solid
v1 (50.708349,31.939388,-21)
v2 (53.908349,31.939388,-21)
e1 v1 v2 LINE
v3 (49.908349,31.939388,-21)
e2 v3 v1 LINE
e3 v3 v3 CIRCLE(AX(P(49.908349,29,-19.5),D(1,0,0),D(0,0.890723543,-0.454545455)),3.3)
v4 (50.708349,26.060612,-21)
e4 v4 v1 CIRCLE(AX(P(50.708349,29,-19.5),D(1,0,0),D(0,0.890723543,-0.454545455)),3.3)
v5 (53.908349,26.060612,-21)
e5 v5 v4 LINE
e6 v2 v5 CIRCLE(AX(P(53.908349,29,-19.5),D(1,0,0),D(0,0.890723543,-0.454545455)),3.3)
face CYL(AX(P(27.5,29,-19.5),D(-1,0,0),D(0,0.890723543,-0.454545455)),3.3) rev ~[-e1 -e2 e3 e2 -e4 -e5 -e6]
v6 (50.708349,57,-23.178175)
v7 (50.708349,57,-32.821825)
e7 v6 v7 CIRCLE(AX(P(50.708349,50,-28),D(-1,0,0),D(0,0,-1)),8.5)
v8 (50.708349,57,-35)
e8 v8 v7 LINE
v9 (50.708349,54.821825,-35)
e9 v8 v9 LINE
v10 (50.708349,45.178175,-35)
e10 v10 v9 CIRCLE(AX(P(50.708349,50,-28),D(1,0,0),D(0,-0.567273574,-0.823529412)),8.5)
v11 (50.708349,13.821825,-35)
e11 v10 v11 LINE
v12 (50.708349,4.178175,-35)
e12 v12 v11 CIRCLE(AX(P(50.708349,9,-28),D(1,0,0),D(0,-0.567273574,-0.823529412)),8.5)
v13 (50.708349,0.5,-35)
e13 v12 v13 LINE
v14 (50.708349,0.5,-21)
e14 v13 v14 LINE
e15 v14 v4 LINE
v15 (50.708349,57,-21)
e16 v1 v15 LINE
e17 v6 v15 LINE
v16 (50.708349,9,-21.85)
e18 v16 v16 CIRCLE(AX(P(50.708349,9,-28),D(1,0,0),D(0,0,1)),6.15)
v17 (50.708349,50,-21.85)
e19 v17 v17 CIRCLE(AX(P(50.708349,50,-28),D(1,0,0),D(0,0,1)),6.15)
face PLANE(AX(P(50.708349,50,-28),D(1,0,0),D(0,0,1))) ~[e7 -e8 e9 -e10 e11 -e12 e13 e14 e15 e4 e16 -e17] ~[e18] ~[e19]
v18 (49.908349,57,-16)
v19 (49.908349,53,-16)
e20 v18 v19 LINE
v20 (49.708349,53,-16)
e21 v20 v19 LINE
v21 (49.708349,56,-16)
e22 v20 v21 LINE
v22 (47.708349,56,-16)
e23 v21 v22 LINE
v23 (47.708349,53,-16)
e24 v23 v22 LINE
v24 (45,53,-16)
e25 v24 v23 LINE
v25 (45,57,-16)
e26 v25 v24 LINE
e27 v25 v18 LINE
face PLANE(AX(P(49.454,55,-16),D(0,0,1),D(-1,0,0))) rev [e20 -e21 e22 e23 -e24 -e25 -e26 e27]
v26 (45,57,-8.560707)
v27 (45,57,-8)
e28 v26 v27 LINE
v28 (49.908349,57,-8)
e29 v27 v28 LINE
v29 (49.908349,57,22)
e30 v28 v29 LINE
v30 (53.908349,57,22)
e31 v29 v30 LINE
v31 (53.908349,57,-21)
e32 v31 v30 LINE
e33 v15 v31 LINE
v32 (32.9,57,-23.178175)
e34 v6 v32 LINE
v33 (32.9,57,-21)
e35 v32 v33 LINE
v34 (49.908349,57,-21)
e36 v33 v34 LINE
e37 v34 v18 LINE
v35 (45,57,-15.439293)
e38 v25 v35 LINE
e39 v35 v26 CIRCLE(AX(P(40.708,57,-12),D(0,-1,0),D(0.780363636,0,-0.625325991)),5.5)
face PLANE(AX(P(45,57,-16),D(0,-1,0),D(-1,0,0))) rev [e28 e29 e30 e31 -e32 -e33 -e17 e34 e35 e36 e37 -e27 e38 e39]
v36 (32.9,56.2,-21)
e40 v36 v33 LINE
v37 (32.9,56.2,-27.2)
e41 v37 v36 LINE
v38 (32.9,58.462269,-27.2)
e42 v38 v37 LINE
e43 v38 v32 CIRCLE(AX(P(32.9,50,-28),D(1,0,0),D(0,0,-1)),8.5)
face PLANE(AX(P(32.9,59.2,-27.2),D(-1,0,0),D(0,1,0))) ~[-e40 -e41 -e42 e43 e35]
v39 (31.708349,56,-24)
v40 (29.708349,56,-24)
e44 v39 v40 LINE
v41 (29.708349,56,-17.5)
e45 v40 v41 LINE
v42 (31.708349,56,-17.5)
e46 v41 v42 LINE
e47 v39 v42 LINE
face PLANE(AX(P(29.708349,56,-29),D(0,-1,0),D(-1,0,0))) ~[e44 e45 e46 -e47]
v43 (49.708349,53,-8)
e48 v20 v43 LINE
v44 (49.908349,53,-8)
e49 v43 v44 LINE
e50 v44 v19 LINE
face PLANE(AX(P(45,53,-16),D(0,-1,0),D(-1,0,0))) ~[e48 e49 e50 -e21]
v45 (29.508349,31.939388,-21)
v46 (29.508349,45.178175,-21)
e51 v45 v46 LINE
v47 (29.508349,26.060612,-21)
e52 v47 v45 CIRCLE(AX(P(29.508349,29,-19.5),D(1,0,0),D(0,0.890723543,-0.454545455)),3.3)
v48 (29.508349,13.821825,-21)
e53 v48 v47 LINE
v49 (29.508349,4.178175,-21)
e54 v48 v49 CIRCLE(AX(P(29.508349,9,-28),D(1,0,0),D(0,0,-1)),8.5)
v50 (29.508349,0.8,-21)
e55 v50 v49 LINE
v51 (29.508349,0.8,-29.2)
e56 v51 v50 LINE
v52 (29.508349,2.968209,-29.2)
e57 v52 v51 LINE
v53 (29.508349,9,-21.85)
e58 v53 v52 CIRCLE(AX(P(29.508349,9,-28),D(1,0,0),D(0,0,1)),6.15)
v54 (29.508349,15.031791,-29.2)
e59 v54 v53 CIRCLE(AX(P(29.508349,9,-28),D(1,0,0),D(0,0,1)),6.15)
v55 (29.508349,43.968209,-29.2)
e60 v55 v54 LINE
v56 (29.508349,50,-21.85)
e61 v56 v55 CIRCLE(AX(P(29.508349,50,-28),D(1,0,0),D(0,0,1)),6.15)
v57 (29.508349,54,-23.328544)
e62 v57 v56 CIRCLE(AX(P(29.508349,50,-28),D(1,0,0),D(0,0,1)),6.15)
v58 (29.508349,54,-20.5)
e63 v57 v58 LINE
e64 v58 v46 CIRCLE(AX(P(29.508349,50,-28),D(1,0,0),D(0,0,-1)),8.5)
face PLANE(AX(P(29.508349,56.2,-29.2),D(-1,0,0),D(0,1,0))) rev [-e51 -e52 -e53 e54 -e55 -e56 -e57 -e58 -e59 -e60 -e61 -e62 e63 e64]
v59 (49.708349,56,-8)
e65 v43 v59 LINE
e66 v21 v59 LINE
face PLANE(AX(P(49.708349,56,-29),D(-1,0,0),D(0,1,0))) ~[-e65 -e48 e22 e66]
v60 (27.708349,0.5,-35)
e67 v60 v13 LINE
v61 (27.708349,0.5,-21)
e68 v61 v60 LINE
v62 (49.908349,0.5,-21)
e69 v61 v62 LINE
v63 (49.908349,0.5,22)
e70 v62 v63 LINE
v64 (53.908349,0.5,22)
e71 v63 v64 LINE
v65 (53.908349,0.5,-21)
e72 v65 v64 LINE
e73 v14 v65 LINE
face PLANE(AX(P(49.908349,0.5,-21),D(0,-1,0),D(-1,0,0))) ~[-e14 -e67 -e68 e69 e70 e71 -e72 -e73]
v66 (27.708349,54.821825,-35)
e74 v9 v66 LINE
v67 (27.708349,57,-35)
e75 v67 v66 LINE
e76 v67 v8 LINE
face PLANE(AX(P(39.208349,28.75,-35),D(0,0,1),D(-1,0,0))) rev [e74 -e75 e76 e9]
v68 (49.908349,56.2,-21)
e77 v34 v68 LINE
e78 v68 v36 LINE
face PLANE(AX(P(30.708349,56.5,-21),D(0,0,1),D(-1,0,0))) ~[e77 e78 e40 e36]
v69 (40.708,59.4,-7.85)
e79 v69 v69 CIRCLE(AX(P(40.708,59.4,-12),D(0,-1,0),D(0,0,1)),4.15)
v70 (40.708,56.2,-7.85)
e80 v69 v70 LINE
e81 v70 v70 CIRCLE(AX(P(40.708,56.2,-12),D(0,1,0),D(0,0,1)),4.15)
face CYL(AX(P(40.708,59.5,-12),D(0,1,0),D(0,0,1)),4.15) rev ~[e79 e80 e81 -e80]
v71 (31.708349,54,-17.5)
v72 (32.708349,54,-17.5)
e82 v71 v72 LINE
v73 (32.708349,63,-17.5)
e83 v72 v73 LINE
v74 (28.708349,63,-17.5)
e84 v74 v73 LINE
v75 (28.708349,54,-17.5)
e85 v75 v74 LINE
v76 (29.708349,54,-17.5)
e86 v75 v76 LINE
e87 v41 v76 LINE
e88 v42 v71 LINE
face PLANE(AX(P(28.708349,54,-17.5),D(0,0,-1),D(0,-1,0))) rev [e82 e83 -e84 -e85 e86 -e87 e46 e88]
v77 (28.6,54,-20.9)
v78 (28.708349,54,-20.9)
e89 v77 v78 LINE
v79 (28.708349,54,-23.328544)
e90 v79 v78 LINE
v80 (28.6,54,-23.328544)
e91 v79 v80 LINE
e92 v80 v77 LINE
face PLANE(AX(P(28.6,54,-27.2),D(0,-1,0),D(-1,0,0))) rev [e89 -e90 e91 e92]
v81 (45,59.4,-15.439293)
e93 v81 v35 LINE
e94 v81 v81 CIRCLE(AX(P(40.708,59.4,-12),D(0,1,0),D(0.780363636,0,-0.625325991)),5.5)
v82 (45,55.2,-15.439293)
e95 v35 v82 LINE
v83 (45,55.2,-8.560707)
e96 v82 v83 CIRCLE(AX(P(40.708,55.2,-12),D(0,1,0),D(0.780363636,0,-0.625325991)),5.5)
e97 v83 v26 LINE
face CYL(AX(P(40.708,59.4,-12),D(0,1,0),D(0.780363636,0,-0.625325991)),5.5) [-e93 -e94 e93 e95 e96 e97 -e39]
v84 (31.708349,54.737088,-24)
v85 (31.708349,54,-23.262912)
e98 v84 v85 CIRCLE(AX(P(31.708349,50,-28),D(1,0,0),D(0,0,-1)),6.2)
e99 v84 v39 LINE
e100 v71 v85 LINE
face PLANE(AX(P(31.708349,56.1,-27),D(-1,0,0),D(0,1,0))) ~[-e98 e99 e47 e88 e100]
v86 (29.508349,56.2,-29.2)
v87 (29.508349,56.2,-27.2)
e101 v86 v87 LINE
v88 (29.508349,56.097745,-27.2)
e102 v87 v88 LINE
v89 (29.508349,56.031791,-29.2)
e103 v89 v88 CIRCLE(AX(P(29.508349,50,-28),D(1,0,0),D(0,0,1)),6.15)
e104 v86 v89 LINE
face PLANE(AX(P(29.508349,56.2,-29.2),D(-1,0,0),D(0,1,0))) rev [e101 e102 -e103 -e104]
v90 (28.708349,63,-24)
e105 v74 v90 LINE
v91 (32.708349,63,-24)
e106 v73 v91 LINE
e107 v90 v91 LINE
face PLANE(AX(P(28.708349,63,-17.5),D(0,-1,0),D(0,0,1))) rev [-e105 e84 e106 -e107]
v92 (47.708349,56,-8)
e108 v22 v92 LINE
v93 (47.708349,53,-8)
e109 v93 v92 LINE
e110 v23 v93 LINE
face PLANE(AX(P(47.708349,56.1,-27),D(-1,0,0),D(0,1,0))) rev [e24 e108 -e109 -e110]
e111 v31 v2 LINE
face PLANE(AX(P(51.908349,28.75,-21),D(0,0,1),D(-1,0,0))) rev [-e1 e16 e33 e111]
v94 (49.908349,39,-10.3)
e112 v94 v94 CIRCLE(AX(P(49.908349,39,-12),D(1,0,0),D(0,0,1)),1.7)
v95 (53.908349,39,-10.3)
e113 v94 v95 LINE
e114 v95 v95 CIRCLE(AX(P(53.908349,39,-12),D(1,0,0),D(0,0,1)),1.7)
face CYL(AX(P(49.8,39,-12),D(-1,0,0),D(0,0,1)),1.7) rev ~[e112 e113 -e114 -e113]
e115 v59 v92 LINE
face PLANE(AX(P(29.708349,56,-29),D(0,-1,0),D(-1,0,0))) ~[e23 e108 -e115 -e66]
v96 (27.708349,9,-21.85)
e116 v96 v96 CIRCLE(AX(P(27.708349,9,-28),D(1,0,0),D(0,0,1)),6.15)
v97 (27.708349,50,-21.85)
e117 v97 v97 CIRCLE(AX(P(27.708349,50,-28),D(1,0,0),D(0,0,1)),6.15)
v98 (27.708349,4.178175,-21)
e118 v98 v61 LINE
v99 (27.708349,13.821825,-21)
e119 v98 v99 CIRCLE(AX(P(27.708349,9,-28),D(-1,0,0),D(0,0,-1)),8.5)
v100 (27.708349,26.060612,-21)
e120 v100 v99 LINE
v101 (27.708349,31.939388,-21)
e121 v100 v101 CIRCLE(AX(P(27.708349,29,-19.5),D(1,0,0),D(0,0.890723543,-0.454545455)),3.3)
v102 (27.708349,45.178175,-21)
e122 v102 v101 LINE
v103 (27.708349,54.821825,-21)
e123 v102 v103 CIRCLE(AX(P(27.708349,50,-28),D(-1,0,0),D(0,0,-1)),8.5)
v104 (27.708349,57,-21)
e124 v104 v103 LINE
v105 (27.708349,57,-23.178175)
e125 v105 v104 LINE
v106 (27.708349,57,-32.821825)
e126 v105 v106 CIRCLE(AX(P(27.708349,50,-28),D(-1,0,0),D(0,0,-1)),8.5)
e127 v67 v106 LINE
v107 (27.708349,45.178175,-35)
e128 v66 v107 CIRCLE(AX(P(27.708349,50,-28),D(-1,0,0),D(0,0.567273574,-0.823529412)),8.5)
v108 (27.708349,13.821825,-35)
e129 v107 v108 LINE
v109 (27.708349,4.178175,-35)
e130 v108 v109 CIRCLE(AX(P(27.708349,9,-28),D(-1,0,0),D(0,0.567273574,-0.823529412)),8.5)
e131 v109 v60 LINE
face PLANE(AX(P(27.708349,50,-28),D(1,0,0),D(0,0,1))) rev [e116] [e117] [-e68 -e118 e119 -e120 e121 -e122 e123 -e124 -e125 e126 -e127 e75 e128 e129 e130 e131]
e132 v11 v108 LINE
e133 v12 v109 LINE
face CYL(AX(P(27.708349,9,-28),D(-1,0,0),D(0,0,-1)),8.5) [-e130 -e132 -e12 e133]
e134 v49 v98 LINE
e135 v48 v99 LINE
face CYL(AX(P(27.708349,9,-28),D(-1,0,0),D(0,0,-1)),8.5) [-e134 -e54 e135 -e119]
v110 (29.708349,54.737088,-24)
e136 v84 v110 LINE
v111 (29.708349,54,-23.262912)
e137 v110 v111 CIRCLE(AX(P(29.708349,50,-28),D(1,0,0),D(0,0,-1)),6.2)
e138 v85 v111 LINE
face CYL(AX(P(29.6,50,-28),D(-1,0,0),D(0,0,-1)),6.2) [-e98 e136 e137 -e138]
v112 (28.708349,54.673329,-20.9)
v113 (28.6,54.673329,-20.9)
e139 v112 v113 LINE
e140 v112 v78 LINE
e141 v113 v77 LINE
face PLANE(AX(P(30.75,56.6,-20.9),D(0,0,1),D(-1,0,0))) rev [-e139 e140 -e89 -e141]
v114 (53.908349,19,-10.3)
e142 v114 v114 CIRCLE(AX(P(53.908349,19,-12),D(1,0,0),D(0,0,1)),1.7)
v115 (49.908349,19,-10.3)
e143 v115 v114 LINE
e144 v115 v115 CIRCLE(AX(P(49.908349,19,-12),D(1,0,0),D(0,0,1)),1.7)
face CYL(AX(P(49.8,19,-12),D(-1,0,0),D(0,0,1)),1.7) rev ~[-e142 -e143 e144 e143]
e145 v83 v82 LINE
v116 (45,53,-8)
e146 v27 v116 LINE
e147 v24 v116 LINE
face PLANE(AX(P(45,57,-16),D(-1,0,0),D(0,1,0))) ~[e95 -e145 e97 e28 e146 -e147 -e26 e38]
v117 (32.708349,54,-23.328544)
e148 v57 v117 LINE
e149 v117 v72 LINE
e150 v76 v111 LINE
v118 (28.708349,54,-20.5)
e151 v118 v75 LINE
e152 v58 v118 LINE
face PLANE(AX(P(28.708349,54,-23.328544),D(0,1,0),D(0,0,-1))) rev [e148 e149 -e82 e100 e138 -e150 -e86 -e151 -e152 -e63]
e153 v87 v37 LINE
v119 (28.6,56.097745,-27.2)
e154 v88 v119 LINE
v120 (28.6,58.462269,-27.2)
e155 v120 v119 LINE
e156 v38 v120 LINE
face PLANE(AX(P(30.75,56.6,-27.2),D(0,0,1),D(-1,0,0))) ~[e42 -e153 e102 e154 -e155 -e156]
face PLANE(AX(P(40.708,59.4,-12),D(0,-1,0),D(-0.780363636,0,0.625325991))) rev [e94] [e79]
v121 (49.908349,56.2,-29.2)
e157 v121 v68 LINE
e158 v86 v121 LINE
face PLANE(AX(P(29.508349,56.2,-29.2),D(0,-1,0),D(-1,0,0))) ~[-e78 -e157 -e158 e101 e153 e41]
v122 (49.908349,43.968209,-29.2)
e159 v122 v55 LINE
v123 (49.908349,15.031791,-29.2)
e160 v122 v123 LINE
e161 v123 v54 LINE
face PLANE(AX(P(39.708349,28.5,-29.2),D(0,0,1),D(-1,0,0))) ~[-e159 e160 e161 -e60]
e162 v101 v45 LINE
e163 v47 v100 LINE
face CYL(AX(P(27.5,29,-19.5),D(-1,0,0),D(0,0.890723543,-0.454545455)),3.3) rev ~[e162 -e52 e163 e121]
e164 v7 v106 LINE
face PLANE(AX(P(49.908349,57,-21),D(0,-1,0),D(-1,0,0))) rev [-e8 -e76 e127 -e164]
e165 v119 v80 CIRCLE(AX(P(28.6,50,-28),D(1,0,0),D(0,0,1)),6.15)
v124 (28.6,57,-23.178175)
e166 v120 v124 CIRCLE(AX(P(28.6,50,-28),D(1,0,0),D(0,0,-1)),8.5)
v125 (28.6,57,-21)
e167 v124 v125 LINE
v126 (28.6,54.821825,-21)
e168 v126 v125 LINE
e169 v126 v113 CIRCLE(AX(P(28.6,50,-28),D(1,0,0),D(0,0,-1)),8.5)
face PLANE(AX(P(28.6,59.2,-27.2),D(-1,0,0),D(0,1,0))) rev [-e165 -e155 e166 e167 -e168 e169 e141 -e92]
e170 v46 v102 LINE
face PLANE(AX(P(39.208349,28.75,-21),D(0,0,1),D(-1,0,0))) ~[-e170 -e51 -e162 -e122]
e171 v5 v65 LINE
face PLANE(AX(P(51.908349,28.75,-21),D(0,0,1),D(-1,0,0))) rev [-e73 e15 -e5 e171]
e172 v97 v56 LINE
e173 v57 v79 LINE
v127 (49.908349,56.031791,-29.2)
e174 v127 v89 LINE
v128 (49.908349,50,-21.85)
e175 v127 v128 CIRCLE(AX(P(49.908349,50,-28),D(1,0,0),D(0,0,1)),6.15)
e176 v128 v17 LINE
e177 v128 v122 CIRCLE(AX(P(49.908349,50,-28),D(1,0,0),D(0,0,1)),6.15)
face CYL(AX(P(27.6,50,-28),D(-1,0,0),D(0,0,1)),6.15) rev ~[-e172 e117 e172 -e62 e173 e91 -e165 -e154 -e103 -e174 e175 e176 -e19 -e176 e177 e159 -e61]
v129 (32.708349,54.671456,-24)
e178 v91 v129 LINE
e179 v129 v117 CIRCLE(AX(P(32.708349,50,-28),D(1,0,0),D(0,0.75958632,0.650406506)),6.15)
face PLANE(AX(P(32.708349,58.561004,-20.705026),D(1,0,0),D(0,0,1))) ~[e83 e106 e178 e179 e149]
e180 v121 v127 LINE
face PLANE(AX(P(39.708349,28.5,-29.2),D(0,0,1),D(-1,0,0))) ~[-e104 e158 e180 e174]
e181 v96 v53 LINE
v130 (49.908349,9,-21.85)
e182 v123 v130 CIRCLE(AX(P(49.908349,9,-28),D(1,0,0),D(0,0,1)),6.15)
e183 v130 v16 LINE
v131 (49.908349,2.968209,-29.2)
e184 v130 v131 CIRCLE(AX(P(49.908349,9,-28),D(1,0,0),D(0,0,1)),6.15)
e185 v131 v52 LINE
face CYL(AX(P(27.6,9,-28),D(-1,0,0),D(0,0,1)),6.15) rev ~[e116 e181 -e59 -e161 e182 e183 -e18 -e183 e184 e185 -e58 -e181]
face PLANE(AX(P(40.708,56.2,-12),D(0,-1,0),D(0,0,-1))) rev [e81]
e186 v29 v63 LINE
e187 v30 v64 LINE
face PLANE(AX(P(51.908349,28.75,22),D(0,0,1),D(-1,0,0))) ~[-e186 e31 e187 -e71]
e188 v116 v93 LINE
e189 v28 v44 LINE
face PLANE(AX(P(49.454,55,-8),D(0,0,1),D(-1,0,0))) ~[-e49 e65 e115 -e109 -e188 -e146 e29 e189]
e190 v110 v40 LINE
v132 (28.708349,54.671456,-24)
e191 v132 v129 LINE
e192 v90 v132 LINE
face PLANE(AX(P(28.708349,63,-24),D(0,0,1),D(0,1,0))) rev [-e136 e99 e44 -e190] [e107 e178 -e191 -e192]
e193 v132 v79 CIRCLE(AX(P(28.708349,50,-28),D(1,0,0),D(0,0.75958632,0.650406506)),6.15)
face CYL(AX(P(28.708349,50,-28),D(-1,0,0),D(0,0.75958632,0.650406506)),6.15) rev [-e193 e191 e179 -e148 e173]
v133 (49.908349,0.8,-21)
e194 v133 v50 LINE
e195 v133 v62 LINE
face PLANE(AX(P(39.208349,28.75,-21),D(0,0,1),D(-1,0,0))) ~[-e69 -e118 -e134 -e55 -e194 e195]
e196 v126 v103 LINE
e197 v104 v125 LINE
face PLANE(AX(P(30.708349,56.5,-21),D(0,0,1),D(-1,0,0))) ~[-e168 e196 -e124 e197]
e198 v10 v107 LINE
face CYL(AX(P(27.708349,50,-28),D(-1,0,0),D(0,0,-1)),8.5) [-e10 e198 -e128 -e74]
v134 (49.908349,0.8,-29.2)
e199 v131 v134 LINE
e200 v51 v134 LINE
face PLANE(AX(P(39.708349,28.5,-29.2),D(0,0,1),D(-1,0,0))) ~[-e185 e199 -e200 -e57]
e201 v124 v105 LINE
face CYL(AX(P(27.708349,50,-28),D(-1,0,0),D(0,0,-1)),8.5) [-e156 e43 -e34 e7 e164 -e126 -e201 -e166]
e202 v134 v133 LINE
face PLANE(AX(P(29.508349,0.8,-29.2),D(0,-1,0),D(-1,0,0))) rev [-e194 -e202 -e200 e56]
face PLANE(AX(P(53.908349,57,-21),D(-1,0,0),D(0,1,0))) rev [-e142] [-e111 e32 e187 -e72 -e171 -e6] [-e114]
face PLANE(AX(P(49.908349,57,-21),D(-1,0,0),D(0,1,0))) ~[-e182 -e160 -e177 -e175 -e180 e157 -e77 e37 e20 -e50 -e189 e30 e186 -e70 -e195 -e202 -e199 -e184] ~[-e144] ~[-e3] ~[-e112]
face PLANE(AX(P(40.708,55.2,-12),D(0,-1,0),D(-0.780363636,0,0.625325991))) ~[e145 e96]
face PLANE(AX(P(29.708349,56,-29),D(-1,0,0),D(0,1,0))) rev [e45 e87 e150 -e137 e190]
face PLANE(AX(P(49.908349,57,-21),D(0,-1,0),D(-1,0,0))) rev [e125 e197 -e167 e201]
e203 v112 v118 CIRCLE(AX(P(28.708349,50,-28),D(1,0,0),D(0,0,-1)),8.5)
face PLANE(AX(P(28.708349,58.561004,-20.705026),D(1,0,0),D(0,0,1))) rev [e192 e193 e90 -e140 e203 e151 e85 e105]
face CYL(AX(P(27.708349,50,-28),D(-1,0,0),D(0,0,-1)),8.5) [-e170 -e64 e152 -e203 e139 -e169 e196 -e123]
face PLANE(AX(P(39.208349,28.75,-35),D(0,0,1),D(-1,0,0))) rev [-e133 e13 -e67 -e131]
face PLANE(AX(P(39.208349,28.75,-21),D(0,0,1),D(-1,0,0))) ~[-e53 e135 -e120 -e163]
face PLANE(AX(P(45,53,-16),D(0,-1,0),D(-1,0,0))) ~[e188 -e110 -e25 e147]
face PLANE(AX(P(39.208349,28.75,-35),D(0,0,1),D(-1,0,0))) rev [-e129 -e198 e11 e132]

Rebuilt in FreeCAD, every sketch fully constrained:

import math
import FreeCAD as App
import Part
import Sketcher

V = App.Vector
Q = App.Units.Quantity


def add_polygon(sketch, points):
    """Adds a closed chain of lines whose ends are joined by coincident constraints."""
    first, n = sketch.GeometryCount, len(points)
    for a, b in zip(points, points[1:] + points[:1]):
        sketch.addGeometry(Part.LineSegment(App.Vector(*a, 0), App.Vector(*b, 0)), False)
    for i in range(n):
        sketch.addConstraint(Sketcher.Constraint("Coincident", first + i, 2, first + (i + 1) % n, 1))

doc = App.newDocument("Part")
body = doc.addObject("PartDesign::Body", "Body")

sketch1 = body.newObject("Sketcher::SketchObject", "Sketch")
sketch1.AttachmentSupport = (doc.getObject("XY_Plane"), [""])
sketch1.MapMode = "FlatFace"
sketch1.AttachmentOffset = App.Placement(V(0, 0, -35), App.Rotation())
add_polygon(sketch1, [(28, 0), (28, -57), (51, -57), (51, 0)])
sketch1.addConstraint([
    Sketcher.Constraint("Vertical", 0),
    Sketcher.Constraint("Horizontal", 1),
    Sketcher.Constraint("Vertical", 2),
    Sketcher.Constraint("Horizontal", 3),
    Sketcher.Constraint("DistanceX", 1, 1, 1, 2, Q("23 mm")),
    Sketcher.Constraint("DistanceY", 0, 2, 0, 1, Q("56.5 mm")),
    Sketcher.Constraint("DistanceY", 0, 2, -1, 1, Q("57 mm")),
    Sketcher.Constraint("DistanceX", -1, 1, 0, 2, Q("27.708349 mm")),
])
pad1 = body.newObject("PartDesign::Pad", "Pad")
pad1.Profile = sketch1
pad1.Length = 14

sketch2 = body.newObject("Sketcher::SketchObject", "Sketch001")
sketch2.AttachmentSupport = (doc.getObject("XY_Plane"), [""])
sketch2.MapMode = "FlatFace"
sketch2.AttachmentOffset = App.Placement(V(0, 0, -21), App.Rotation())
add_polygon(sketch2, [(49.9, -0.5), (49.9, -57), (53.9, -57), (53.9, -0.5)])
sketch2.addConstraint([
    Sketcher.Constraint("Vertical", 0),
    Sketcher.Constraint("Horizontal", 1),
    Sketcher.Constraint("Vertical", 2),
    Sketcher.Constraint("Horizontal", 3),
    Sketcher.Constraint("DistanceX", 1, 1, 1, 2, Q("4 mm")),
    Sketcher.Constraint("DistanceY", 0, 2, 0, 1, Q("56.5 mm")),
    Sketcher.Constraint("DistanceY", 0, 2, -1, 1, Q("57 mm")),
    Sketcher.Constraint("DistanceX", -1, 1, 0, 2, Q("49.908349 mm")),
])
pad2 = body.newObject("PartDesign::Pad", "Pad001")
pad2.Profile = sketch2
pad2.Length = 43

sketch3 = body.newObject("Sketcher::SketchObject", "Sketch002")
sketch3.AttachmentSupport = (doc.getObject("YZ_Plane"), [""])
sketch3.MapMode = "FlatFace"
sketch3.AttachmentOffset = App.Placement(V(0, 0, 27.708349), App.Rotation())
sketch3.addGeometry(Part.Circle(V(-9, -28, 0), V(0, 0, 1), 8), False)
sketch3.addConstraint([
    Sketcher.Constraint("Diameter", 0, Q("17 mm")),
    Sketcher.Constraint("DistanceX", 0, 3, -1, 1, Q("9 mm")),
    Sketcher.Constraint("DistanceY", 0, 3, -1, 1, Q("28 mm")),
])
pad3 = body.newObject("PartDesign::Pad", "Pad002")
pad3.Profile = sketch3
pad3.Length = 23

sketch4 = body.newObject("Sketcher::SketchObject", "Sketch003")
sketch4.AttachmentSupport = (doc.getObject("YZ_Plane"), [""])
sketch4.MapMode = "FlatFace"
sketch4.AttachmentOffset = App.Placement(V(0, 0, 27.708349), App.Rotation())
sketch4.addGeometry(Part.Circle(V(-50, -28, 0), V(0, 0, 1), 8), False)
sketch4.addConstraint([
    Sketcher.Constraint("Diameter", 0, Q("17 mm")),
    Sketcher.Constraint("DistanceX", 0, 3, -1, 1, Q("50 mm")),
    Sketcher.Constraint("DistanceY", 0, 3, -1, 1, Q("28 mm")),
])
pad4 = body.newObject("PartDesign::Pad", "Pad003")
pad4.Profile = sketch4
pad4.Length = 23

sketch5 = body.newObject("Sketcher::SketchObject", "Sketch004")
sketch5.AttachmentSupport = (doc.getObject("XY_Plane"), [""])
sketch5.MapMode = "FlatFace"
sketch5.AttachmentOffset = App.Placement(V(0, 0, -29.2), App.Rotation())
add_polygon(sketch5, [(30, -1), (30, -56), (50, -56), (50, -1)])
sketch5.addConstraint([
    Sketcher.Constraint("Vertical", 0),
    Sketcher.Constraint("Horizontal", 1),
    Sketcher.Constraint("Vertical", 2),
    Sketcher.Constraint("Horizontal", 3),
    Sketcher.Constraint("DistanceX", 1, 1, 1, 2, Q("20.4 mm")),
    Sketcher.Constraint("DistanceY", 0, 2, 0, 1, Q("55.4 mm")),
    Sketcher.Constraint("DistanceY", 0, 2, -1, 1, Q("56.2 mm")),
    Sketcher.Constraint("DistanceX", -1, 1, 0, 2, Q("29.508349 mm")),
])
pocket1 = body.newObject("PartDesign::Pocket", "Pocket")
pocket1.Profile = sketch5
pocket1.Length = 40.4
pocket1.Reversed = True

sketch6 = body.newObject("Sketcher::SketchObject", "Sketch005")
sketch6.AttachmentSupport = (doc.getObject("YZ_Plane"), [""])
sketch6.MapMode = "FlatFace"
sketch6.AttachmentOffset = App.Placement(V(0, 0, 27.6), App.Rotation())
sketch6.addGeometry(Part.Circle(V(-9, -28, 0), V(0, 0, 1), 6), False)
sketch6.addConstraint([
    Sketcher.Constraint("Diameter", 0, Q("12.3 mm")),
    Sketcher.Constraint("DistanceX", 0, 3, -1, 1, Q("9 mm")),
    Sketcher.Constraint("DistanceY", 0, 3, -1, 1, Q("28 mm")),
])
pocket2 = body.newObject("PartDesign::Pocket", "Pocket001")
pocket2.Profile = sketch6
pocket2.Length = 23.3
pocket2.Reversed = True

sketch7 = body.newObject("Sketcher::SketchObject", "Sketch006")
sketch7.AttachmentSupport = (doc.getObject("YZ_Plane"), [""])
sketch7.MapMode = "FlatFace"
sketch7.AttachmentOffset = App.Placement(V(0, 0, 27.6), App.Rotation())
sketch7.addGeometry(Part.Circle(V(-50, -28, 0), V(0, 0, 1), 6), False)
sketch7.addConstraint([
    Sketcher.Constraint("Diameter", 0, Q("12.3 mm")),
    Sketcher.Constraint("DistanceX", 0, 3, -1, 1, Q("50 mm")),
    Sketcher.Constraint("DistanceY", 0, 3, -1, 1, Q("28 mm")),
])
pocket3 = body.newObject("PartDesign::Pocket", "Pocket002")
pocket3.Profile = sketch7
pocket3.Length = 23.3
pocket3.Reversed = True

sketch8 = body.newObject("Sketcher::SketchObject", "Sketch007")
sketch8.AttachmentSupport = (doc.getObject("YZ_Plane"), [""])
sketch8.MapMode = "FlatFace"
sketch8.AttachmentOffset = App.Placement(V(0, 0, 49.8), App.Rotation())
sketch8.addGeometry(Part.Circle(V(-19, -12, 0), V(0, 0, 1), 1.7), False)
sketch8.addConstraint([
    Sketcher.Constraint("Diameter", 0, Q("3.4 mm")),
    Sketcher.Constraint("DistanceX", 0, 3, -1, 1, Q("19 mm")),
    Sketcher.Constraint("DistanceY", 0, 3, -1, 1, Q("12 mm")),
])
pocket4 = body.newObject("PartDesign::Pocket", "Pocket003")
pocket4.Profile = sketch8
pocket4.Length = 4.3
pocket4.Reversed = True

sketch9 = body.newObject("Sketcher::SketchObject", "Sketch008")
sketch9.AttachmentSupport = (doc.getObject("YZ_Plane"), [""])
sketch9.MapMode = "FlatFace"
sketch9.AttachmentOffset = App.Placement(V(0, 0, 49.8), App.Rotation())
sketch9.addGeometry(Part.Circle(V(-39, -12, 0), V(0, 0, 1), 1.7), False)
sketch9.addConstraint([
    Sketcher.Constraint("Diameter", 0, Q("3.4 mm")),
    Sketcher.Constraint("DistanceX", 0, 3, -1, 1, Q("39 mm")),
    Sketcher.Constraint("DistanceY", 0, 3, -1, 1, Q("12 mm")),
])
pocket5 = body.newObject("PartDesign::Pocket", "Pocket004")
pocket5.Profile = sketch9
pocket5.Length = 4.3
pocket5.Reversed = True

sketch10 = body.newObject("Sketcher::SketchObject", "Sketch009")
sketch10.AttachmentSupport = (doc.getObject("XY_Plane"), [""])
sketch10.MapMode = "FlatFace"
sketch10.AttachmentOffset = App.Placement(V(0, 0, -27), App.Rotation())
add_polygon(sketch10, [(28.7, -54), (28.7, -59), (32.7, -59), (32.7, -54)])
sketch10.addConstraint([
    Sketcher.Constraint("Vertical", 0),
    Sketcher.Constraint("Horizontal", 1),
    Sketcher.Constraint("Vertical", 2),
    Sketcher.Constraint("Horizontal", 3),
    Sketcher.Constraint("DistanceX", 1, 1, 1, 2, Q("4 mm")),
    Sketcher.Constraint("DistanceY", 0, 2, 0, 1, Q("5 mm")),
    Sketcher.Constraint("DistanceY", 0, 2, -1, 1, Q("59 mm")),
    Sketcher.Constraint("DistanceX", -1, 1, 0, 2, Q("28.708349 mm")),
])
pad5 = body.newObject("PartDesign::Pad", "Pad004")
pad5.Profile = sketch10
pad5.Length = 6

sketch11 = body.newObject("Sketcher::SketchObject", "Sketch010")
sketch11.AttachmentSupport = (doc.getObject("XY_Plane"), [""])
sketch11.MapMode = "FlatFace"
sketch11.AttachmentOffset = App.Placement(V(0, 0, -16), App.Rotation())
add_polygon(sketch11, [(45, -53), (45, -57), (53.9, -57), (53.9, -53)])
sketch11.addConstraint([
    Sketcher.Constraint("Vertical", 0),
    Sketcher.Constraint("Horizontal", 1),
    Sketcher.Constraint("Vertical", 2),
    Sketcher.Constraint("Horizontal", 3),
    Sketcher.Constraint("DistanceY", 0, 2, 0, 1, Q("4 mm")),
    Sketcher.Constraint("DistanceX", -1, 1, 0, 2, Q("45 mm")),
    Sketcher.Constraint("DistanceY", 0, 2, -1, 1, Q("57 mm")),
    Sketcher.Constraint("DistanceX", 1, 1, 1, 2, Q("8.908 mm")),
])
pad6 = body.newObject("PartDesign::Pad", "Pad005")
pad6.Profile = sketch11
pad6.Length = 8

sketch12 = body.newObject("Sketcher::SketchObject", "Sketch011")
sketch12.AttachmentSupport = (doc.getObject("XZ_Plane"), [""])
sketch12.MapMode = "FlatFace"
sketch12.AttachmentOffset = App.Placement(V(0, 0, 59.4), App.Rotation())
sketch12.addGeometry(Part.Circle(V(41, -12, 0), V(0, 0, 1), 6), False)
sketch12.addConstraint([
    Sketcher.Constraint("Diameter", 0, Q("11 mm")),
    Sketcher.Constraint("DistanceY", 0, 3, -1, 1, Q("12 mm")),
    Sketcher.Constraint("DistanceX", -1, 1, 0, 3, Q("40.708 mm")),
])
pad7 = body.newObject("PartDesign::Pad", "Pad006")
pad7.Profile = sketch12
pad7.Length = 4.2
pad7.Reversed = True

sketch13 = body.newObject("Sketcher::SketchObject", "Sketch012")
sketch13.AttachmentSupport = (doc.getObject("XZ_Plane"), [""])
sketch13.MapMode = "FlatFace"
sketch13.AttachmentOffset = App.Placement(V(0, 0, 59.5), App.Rotation())
sketch13.addGeometry(Part.Circle(V(40.7, -12, 0), V(0, 0, 1), 4.2), False)
sketch13.addConstraint([
    Sketcher.Constraint("Diameter", 0, Q("8.3 mm")),
    Sketcher.Constraint("DistanceY", 0, 3, -1, 1, Q("12 mm")),
    Sketcher.Constraint("DistanceX", -1, 1, 0, 3, Q("40.708 mm")),
])
pocket6 = body.newObject("PartDesign::Pocket", "Pocket005")
pocket6.Profile = sketch13
pocket6.Length = 3.3
body2 = doc.addObject("PartDesign::Body", "Body001")

sketch14 = body2.newObject("Sketcher::SketchObject", "Sketch013")
sketch14.AttachmentSupport = (doc.getObject("XY_Plane001"), [""])
sketch14.MapMode = "FlatFace"
sketch14.AttachmentOffset = App.Placement(V(0, 0, -29), App.Rotation())
add_polygon(sketch14, [(30, -1), (30, -56), (50, -56), (50, -1)])
sketch14.addConstraint([
    Sketcher.Constraint("Vertical", 0),
    Sketcher.Constraint("Horizontal", 1),
    Sketcher.Constraint("Vertical", 2),
    Sketcher.Constraint("Horizontal", 3),
    Sketcher.Constraint("DistanceX", 1, 1, 1, 2, Q("20 mm")),
    Sketcher.Constraint("DistanceY", 0, 2, 0, 1, Q("55 mm")),
    Sketcher.Constraint("DistanceY", 0, 2, -1, 1, Q("56 mm")),
    Sketcher.Constraint("DistanceX", -1, 1, 0, 2, Q("29.708349 mm")),
])
pad8 = body2.newObject("PartDesign::Pad", "Pad007")
pad8.Profile = sketch14
pad8.Length = 40

sketch15 = body2.newObject("Sketcher::SketchObject", "Sketch014")
sketch15.AttachmentSupport = (doc.getObject("XY_Plane001"), [""])
sketch15.MapMode = "FlatFace"
sketch15.AttachmentOffset = App.Placement(V(0, 0, -27), App.Rotation())
add_polygon(sketch15, [(32, -1), (32, -56), (48, -56), (48, -1)])
sketch15.addConstraint([
    Sketcher.Constraint("Vertical", 0),
    Sketcher.Constraint("Horizontal", 1),
    Sketcher.Constraint("Vertical", 2),
    Sketcher.Constraint("Horizontal", 3),
    Sketcher.Constraint("DistanceX", 1, 1, 1, 2, Q("16 mm")),
    Sketcher.Constraint("DistanceY", 0, 2, 0, 1, Q("55.2 mm")),
    Sketcher.Constraint("DistanceY", 0, 2, -1, 1, Q("56.1 mm")),
    Sketcher.Constraint("DistanceX", -1, 1, 0, 2, Q("31.708349 mm")),
])
pocket7 = body2.newObject("PartDesign::Pocket", "Pocket006")
pocket7.Profile = sketch15
pocket7.Length = 36
pocket7.Reversed = True

sketch16 = body2.newObject("Sketcher::SketchObject", "Sketch015")
sketch16.AttachmentSupport = (doc.getObject("YZ_Plane001"), [""])
sketch16.MapMode = "FlatFace"
sketch16.AttachmentOffset = App.Placement(V(0, 0, 29.6), App.Rotation())
sketch16.addGeometry(Part.Circle(V(-9, -28, 0), V(0, 0, 1), 6), False)
sketch16.addConstraint([
    Sketcher.Constraint("Diameter", 0, Q("12.4 mm")),
    Sketcher.Constraint("DistanceX", 0, 3, -1, 1, Q("9 mm")),
    Sketcher.Constraint("DistanceY", 0, 3, -1, 1, Q("28 mm")),
])
pocket8 = body2.newObject("PartDesign::Pocket", "Pocket007")
pocket8.Profile = sketch16
pocket8.Length = 20.3
pocket8.Reversed = True

sketch17 = body2.newObject("Sketcher::SketchObject", "Sketch016")
sketch17.AttachmentSupport = (doc.getObject("YZ_Plane001"), [""])
sketch17.MapMode = "FlatFace"
sketch17.AttachmentOffset = App.Placement(V(0, 0, 29.6), App.Rotation())
sketch17.addGeometry(Part.Circle(V(-50, -28, 0), V(0, 0, 1), 6), False)
sketch17.addConstraint([
    Sketcher.Constraint("Diameter", 0, Q("12.4 mm")),
    Sketcher.Constraint("DistanceX", 0, 3, -1, 1, Q("50 mm")),
    Sketcher.Constraint("DistanceY", 0, 3, -1, 1, Q("28 mm")),
])
pocket9 = body2.newObject("PartDesign::Pocket", "Pocket008")
pocket9.Profile = sketch17
pocket9.Length = 20.3
pocket9.Reversed = True

sketch18 = body2.newObject("Sketcher::SketchObject", "Sketch017")
sketch18.AttachmentSupport = (doc.getObject("YZ_Plane001"), [""])
sketch18.MapMode = "FlatFace"
sketch18.AttachmentOffset = App.Placement(V(0, 0, 29.6), App.Rotation())
sketch18.addGeometry(Part.Circle(V(-29, -19.5, 0), V(0, 0, 1), 3.3), False)
sketch18.addConstraint([
    Sketcher.Constraint("Diameter", 0, Q("6.6 mm")),
    Sketcher.Constraint("DistanceX", 0, 3, -1, 1, Q("29 mm")),
    Sketcher.Constraint("DistanceY", 0, 3, -1, 1, Q("19.5 mm")),
])
pocket10 = body2.newObject("PartDesign::Pocket", "Pocket009")
pocket10.Profile = sketch18
pocket10.Length = 20.3
pocket10.Reversed = True

sketch19 = body2.newObject("Sketcher::SketchObject", "Sketch018")
sketch19.AttachmentSupport = (doc.getObject("XY_Plane001"), [""])
sketch19.MapMode = "FlatFace"
sketch19.AttachmentOffset = App.Placement(V(0, 0, 8.9), App.Rotation())
sketch19.addGeometry(Part.Circle(V(35.7, -12, 0), V(0, 0, 1), 1.7), False)
sketch19.addConstraint([
    Sketcher.Constraint("Diameter", 0, Q("3.4 mm")),
    Sketcher.Constraint("DistanceY", 0, 3, -1, 1, Q("12 mm")),
    Sketcher.Constraint("DistanceX", -1, 1, 0, 3, Q("35.708349 mm")),
])
pocket11 = body2.newObject("PartDesign::Pocket", "Pocket010")
pocket11.Profile = sketch19
pocket11.Length = 2.2
pocket11.Reversed = True

sketch20 = body2.newObject("Sketcher::SketchObject", "Sketch019")
sketch20.AttachmentSupport = (doc.getObject("XY_Plane001"), [""])
sketch20.MapMode = "FlatFace"
sketch20.AttachmentOffset = App.Placement(V(0, 0, 8.9), App.Rotation())
sketch20.addGeometry(Part.Circle(V(35.7, -29, 0), V(0, 0, 1), 1.7), False)
sketch20.addConstraint([
    Sketcher.Constraint("Diameter", 0, Q("3.4 mm")),
    Sketcher.Constraint("DistanceY", 0, 3, -1, 1, Q("29 mm")),
    Sketcher.Constraint("DistanceX", -1, 1, 0, 3, Q("35.708349 mm")),
])
pocket12 = body2.newObject("PartDesign::Pocket", "Pocket011")
pocket12.Profile = sketch20
pocket12.Length = 2.2
pocket12.Reversed = True

sketch21 = body2.newObject("Sketcher::SketchObject", "Sketch020")
sketch21.AttachmentSupport = (doc.getObject("XY_Plane001"), [""])
sketch21.MapMode = "FlatFace"
sketch21.AttachmentOffset = App.Placement(V(0, 0, 8.9), App.Rotation())
sketch21.addGeometry(Part.Circle(V(35.7, -46, 0), V(0, 0, 1), 1.7), False)
sketch21.addConstraint([
    Sketcher.Constraint("Diameter", 0, Q("3.4 mm")),
    Sketcher.Constraint("DistanceY", 0, 3, -1, 1, Q("46 mm")),
    Sketcher.Constraint("DistanceX", -1, 1, 0, 3, Q("35.708349 mm")),
])
pocket13 = body2.newObject("PartDesign::Pocket", "Pocket012")
pocket13.Profile = sketch21
pocket13.Length = 2.2
pocket13.Reversed = True

sketch22 = body2.newObject("Sketcher::SketchObject", "Sketch021")
sketch22.AttachmentSupport = (doc.getObject("YZ_Plane001"), [""])
sketch22.MapMode = "FlatFace"
sketch22.AttachmentOffset = App.Placement(V(0, 0, 47.6), App.Rotation())
sketch22.addGeometry(Part.Circle(V(-19, -12, 0), V(0, 0, 1), 1.7), False)
sketch22.addConstraint([
    Sketcher.Constraint("Diameter", 0, Q("3.4 mm")),
    Sketcher.Constraint("DistanceX", 0, 3, -1, 1, Q("19 mm")),
    Sketcher.Constraint("DistanceY", 0, 3, -1, 1, Q("12 mm")),
])
pocket14 = body2.newObject("PartDesign::Pocket", "Pocket013")
pocket14.Profile = sketch22
pocket14.Length = 2.3
pocket14.Reversed = True

sketch23 = body2.newObject("Sketcher::SketchObject", "Sketch022")
sketch23.AttachmentSupport = (doc.getObject("YZ_Plane001"), [""])
sketch23.MapMode = "FlatFace"
sketch23.AttachmentOffset = App.Placement(V(0, 0, 47.6), App.Rotation())
sketch23.addGeometry(Part.Circle(V(-39, -12, 0), V(0, 0, 1), 1.7), False)
sketch23.addConstraint([
    Sketcher.Constraint("Diameter", 0, Q("3.4 mm")),
    Sketcher.Constraint("DistanceX", 0, 3, -1, 1, Q("39 mm")),
    Sketcher.Constraint("DistanceY", 0, 3, -1, 1, Q("12 mm")),
])
pocket15 = body2.newObject("PartDesign::Pocket", "Pocket014")
pocket15.Profile = sketch23
pocket15.Length = 2.3
pocket15.Reversed = True
doc.recompute()

boolean = body.newObject("PartDesign::Boolean", "Boolean")
boolean.Type = "Cut"
boolean.addObjects([body2])

sketch24 = body.newObject("Sketcher::SketchObject", "Sketch023")
sketch24.AttachmentSupport = (doc.getObject("YZ_Plane"), [""])
sketch24.MapMode = "FlatFace"
sketch24.AttachmentOffset = App.Placement(V(0, 0, 27.5), App.Rotation())
sketch24.addGeometry(Part.Circle(V(-29, -19.5, 0), V(0, 0, 1), 3.3), False)
sketch24.addConstraint([
    Sketcher.Constraint("Diameter", 0, Q("6.6 mm")),
    Sketcher.Constraint("DistanceX", 0, 3, -1, 1, Q("29 mm")),
    Sketcher.Constraint("DistanceY", 0, 3, -1, 1, Q("19.5 mm")),
])
pocket16 = body.newObject("PartDesign::Pocket", "Pocket015")
pocket16.Profile = sketch24
pocket16.Length = 26.7
pocket16.Reversed = True

sketch25 = body.newObject("Sketcher::SketchObject", "Sketch024")
sketch25.AttachmentSupport = (doc.getObject("XY_Plane"), [""])
sketch25.MapMode = "FlatFace"
sketch25.AttachmentOffset = App.Placement(V(0, 0, -27.2), App.Rotation())
add_polygon(sketch25, [(28.6, -54), (28.6, -59.2), (32.9, -59.2), (32.9, -54)])
sketch25.addConstraint([
    Sketcher.Constraint("Vertical", 0),
    Sketcher.Constraint("Horizontal", 1),
    Sketcher.Constraint("Vertical", 2),
    Sketcher.Constraint("Horizontal", 3),
    Sketcher.Constraint("DistanceX", 1, 1, 1, 2, Q("4.3 mm")),
    Sketcher.Constraint("DistanceY", 0, 2, 0, 1, Q("5.2 mm")),
    Sketcher.Constraint("DistanceY", 2, 2, -1, 1, Q("54 mm")),
    Sketcher.Constraint("DistanceX", -1, 1, 0, 2, Q("28.6 mm")),
])
pocket17 = body.newObject("PartDesign::Pocket", "Pocket016")
pocket17.Profile = sketch25
pocket17.Length = 6.3
pocket17.Reversed = True

sketch26 = body.newObject("Sketcher::SketchObject", "Sketch025")
sketch26.AttachmentSupport = (doc.getObject("YZ_Plane"), [""])
sketch26.MapMode = "FlatFace"
sketch26.AttachmentOffset = App.Placement(V(0, 0, 28.708349), App.Rotation())
sketch26.addGeometry([
    Part.LineSegment(V(-63, -17.5, 0), V(-63, -24, 0)),
    Part.LineSegment(V(-63, -24, 0), V(-54.7, -24, 0)),
    Part.ArcOfCircle(Part.Circle(V(-50, -28, 0), V(0, 0, 1), 6.2), math.radians(130.57), math.radians(139.43)),
    Part.LineSegment(V(-54, -23.3, 0), V(-54, -17.5, 0)),
    Part.LineSegment(V(-54, -17.5, 0), V(-63, -17.5, 0)),
], False)
sketch26.addConstraint([
    Sketcher.Constraint("Coincident", 0, 2, 1, 1),
    Sketcher.Constraint("Coincident", 1, 2, 2, 2),
    Sketcher.Constraint("Coincident", 2, 1, 3, 1),
    Sketcher.Constraint("Coincident", 3, 2, 4, 1),
    Sketcher.Constraint("Coincident", 4, 2, 0, 1),
    Sketcher.Constraint("Vertical", 0),
    Sketcher.Constraint("Horizontal", 1),
    Sketcher.Constraint("Vertical", 3),
    Sketcher.Constraint("Horizontal", 4),
    Sketcher.Constraint("DistanceX", 4, 2, 4, 1, Q("9 mm")),
    Sketcher.Constraint("Radius", 2, Q("6.15 mm")),
    Sketcher.Constraint("DistanceY", 0, 2, 0, 1, Q("6.5 mm")),
    Sketcher.Constraint("DistanceX", 2, 3, -1, 1, Q("50 mm")),
    Sketcher.Constraint("DistanceY", 2, 3, -1, 1, Q("28 mm")),
    Sketcher.Constraint("DistanceX", 0, 2, -1, 1, Q("63 mm")),
    Sketcher.Constraint("DistanceY", 0, 2, -1, 1, Q("24 mm")),
])
pad9 = body.newObject("PartDesign::Pad", "Pad008")
pad9.Profile = sketch26
pad9.Length = 4
body3 = doc.addObject("PartDesign::Body", "Body002")

sketch27 = body3.newObject("Sketcher::SketchObject", "Sketch026")
sketch27.AttachmentSupport = (doc.getObject("XY_Plane002"), [""])
sketch27.MapMode = "FlatFace"
sketch27.AttachmentOffset = App.Placement(V(0, 0, -29), App.Rotation())
add_polygon(sketch27, [(30, -1), (30, -56), (50, -56), (50, -1)])
sketch27.addConstraint([
    Sketcher.Constraint("Vertical", 0),
    Sketcher.Constraint("Horizontal", 1),
    Sketcher.Constraint("Vertical", 2),
    Sketcher.Constraint("Horizontal", 3),
    Sketcher.Constraint("DistanceX", 1, 1, 1, 2, Q("20 mm")),
    Sketcher.Constraint("DistanceY", 0, 2, 0, 1, Q("55 mm")),
    Sketcher.Constraint("DistanceY", 0, 2, -1, 1, Q("56 mm")),
    Sketcher.Constraint("DistanceX", -1, 1, 0, 2, Q("29.708349 mm")),
])
pad10 = body3.newObject("PartDesign::Pad", "Pad009")
pad10.Profile = sketch27
pad10.Length = 40

sketch28 = body3.newObject("Sketcher::SketchObject", "Sketch027")
sketch28.AttachmentSupport = (doc.getObject("XY_Plane002"), [""])
sketch28.MapMode = "FlatFace"
sketch28.AttachmentOffset = App.Placement(V(0, 0, -27), App.Rotation())
add_polygon(sketch28, [(32, -1), (32, -56), (48, -56), (48, -1)])
sketch28.addConstraint([
    Sketcher.Constraint("Vertical", 0),
    Sketcher.Constraint("Horizontal", 1),
    Sketcher.Constraint("Vertical", 2),
    Sketcher.Constraint("Horizontal", 3),
    Sketcher.Constraint("DistanceX", 1, 1, 1, 2, Q("16 mm")),
    Sketcher.Constraint("DistanceY", 0, 2, 0, 1, Q("55.2 mm")),
    Sketcher.Constraint("DistanceY", 0, 2, -1, 1, Q("56.1 mm")),
    Sketcher.Constraint("DistanceX", -1, 1, 0, 2, Q("31.708349 mm")),
])
pocket18 = body3.newObject("PartDesign::Pocket", "Pocket017")
pocket18.Profile = sketch28
pocket18.Length = 36
pocket18.Reversed = True

sketch29 = body3.newObject("Sketcher::SketchObject", "Sketch028")
sketch29.AttachmentSupport = (doc.getObject("YZ_Plane002"), [""])
sketch29.MapMode = "FlatFace"
sketch29.AttachmentOffset = App.Placement(V(0, 0, 29.6), App.Rotation())
sketch29.addGeometry(Part.Circle(V(-9, -28, 0), V(0, 0, 1), 6), False)
sketch29.addConstraint([
    Sketcher.Constraint("Diameter", 0, Q("12.4 mm")),
    Sketcher.Constraint("DistanceX", 0, 3, -1, 1, Q("9 mm")),
    Sketcher.Constraint("DistanceY", 0, 3, -1, 1, Q("28 mm")),
])
pocket19 = body3.newObject("PartDesign::Pocket", "Pocket018")
pocket19.Profile = sketch29
pocket19.Length = 20.3
pocket19.Reversed = True

sketch30 = body3.newObject("Sketcher::SketchObject", "Sketch029")
sketch30.AttachmentSupport = (doc.getObject("YZ_Plane002"), [""])
sketch30.MapMode = "FlatFace"
sketch30.AttachmentOffset = App.Placement(V(0, 0, 29.6), App.Rotation())
sketch30.addGeometry(Part.Circle(V(-50, -28, 0), V(0, 0, 1), 6), False)
sketch30.addConstraint([
    Sketcher.Constraint("Diameter", 0, Q("12.4 mm")),
    Sketcher.Constraint("DistanceX", 0, 3, -1, 1, Q("50 mm")),
    Sketcher.Constraint("DistanceY", 0, 3, -1, 1, Q("28 mm")),
])
pocket20 = body3.newObject("PartDesign::Pocket", "Pocket019")
pocket20.Profile = sketch30
pocket20.Length = 20.3
pocket20.Reversed = True

sketch31 = body3.newObject("Sketcher::SketchObject", "Sketch030")
sketch31.AttachmentSupport = (doc.getObject("YZ_Plane002"), [""])
sketch31.MapMode = "FlatFace"
sketch31.AttachmentOffset = App.Placement(V(0, 0, 29.6), App.Rotation())
sketch31.addGeometry(Part.Circle(V(-29, -19.5, 0), V(0, 0, 1), 3.3), False)
sketch31.addConstraint([
    Sketcher.Constraint("Diameter", 0, Q("6.6 mm")),
    Sketcher.Constraint("DistanceX", 0, 3, -1, 1, Q("29 mm")),
    Sketcher.Constraint("DistanceY", 0, 3, -1, 1, Q("19.5 mm")),
])
pocket21 = body3.newObject("PartDesign::Pocket", "Pocket020")
pocket21.Profile = sketch31
pocket21.Length = 20.3
pocket21.Reversed = True

sketch32 = body3.newObject("Sketcher::SketchObject", "Sketch031")
sketch32.AttachmentSupport = (doc.getObject("XY_Plane002"), [""])
sketch32.MapMode = "FlatFace"
sketch32.AttachmentOffset = App.Placement(V(0, 0, 8.9), App.Rotation())
sketch32.addGeometry(Part.Circle(V(35.7, -12, 0), V(0, 0, 1), 1.7), False)
sketch32.addConstraint([
    Sketcher.Constraint("Diameter", 0, Q("3.4 mm")),
    Sketcher.Constraint("DistanceY", 0, 3, -1, 1, Q("12 mm")),
    Sketcher.Constraint("DistanceX", -1, 1, 0, 3, Q("35.708349 mm")),
])
pocket22 = body3.newObject("PartDesign::Pocket", "Pocket021")
pocket22.Profile = sketch32
pocket22.Length = 2.2
pocket22.Reversed = True

sketch33 = body3.newObject("Sketcher::SketchObject", "Sketch032")
sketch33.AttachmentSupport = (doc.getObject("XY_Plane002"), [""])
sketch33.MapMode = "FlatFace"
sketch33.AttachmentOffset = App.Placement(V(0, 0, 8.9), App.Rotation())
sketch33.addGeometry(Part.Circle(V(35.7, -29, 0), V(0, 0, 1), 1.7), False)
sketch33.addConstraint([
    Sketcher.Constraint("Diameter", 0, Q("3.4 mm")),
    Sketcher.Constraint("DistanceY", 0, 3, -1, 1, Q("29 mm")),
    Sketcher.Constraint("DistanceX", -1, 1, 0, 3, Q("35.708349 mm")),
])
pocket23 = body3.newObject("PartDesign::Pocket", "Pocket022")
pocket23.Profile = sketch33
pocket23.Length = 2.2
pocket23.Reversed = True

sketch34 = body3.newObject("Sketcher::SketchObject", "Sketch033")
sketch34.AttachmentSupport = (doc.getObject("XY_Plane002"), [""])
sketch34.MapMode = "FlatFace"
sketch34.AttachmentOffset = App.Placement(V(0, 0, 8.9), App.Rotation())
sketch34.addGeometry(Part.Circle(V(35.7, -46, 0), V(0, 0, 1), 1.7), False)
sketch34.addConstraint([
    Sketcher.Constraint("Diameter", 0, Q("3.4 mm")),
    Sketcher.Constraint("DistanceY", 0, 3, -1, 1, Q("46 mm")),
    Sketcher.Constraint("DistanceX", -1, 1, 0, 3, Q("35.708349 mm")),
])
pocket24 = body3.newObject("PartDesign::Pocket", "Pocket023")
pocket24.Profile = sketch34
pocket24.Length = 2.2
pocket24.Reversed = True

sketch35 = body3.newObject("Sketcher::SketchObject", "Sketch034")
sketch35.AttachmentSupport = (doc.getObject("YZ_Plane002"), [""])
sketch35.MapMode = "FlatFace"
sketch35.AttachmentOffset = App.Placement(V(0, 0, 47.6), App.Rotation())
sketch35.addGeometry(Part.Circle(V(-19, -12, 0), V(0, 0, 1), 1.7), False)
sketch35.addConstraint([
    Sketcher.Constraint("Diameter", 0, Q("3.4 mm")),
    Sketcher.Constraint("DistanceX", 0, 3, -1, 1, Q("19 mm")),
    Sketcher.Constraint("DistanceY", 0, 3, -1, 1, Q("12 mm")),
])
pocket25 = body3.newObject("PartDesign::Pocket", "Pocket024")
pocket25.Profile = sketch35
pocket25.Length = 2.3
pocket25.Reversed = True

sketch36 = body3.newObject("Sketcher::SketchObject", "Sketch035")
sketch36.AttachmentSupport = (doc.getObject("YZ_Plane002"), [""])
sketch36.MapMode = "FlatFace"
sketch36.AttachmentOffset = App.Placement(V(0, 0, 47.6), App.Rotation())
sketch36.addGeometry(Part.Circle(V(-39, -12, 0), V(0, 0, 1), 1.7), False)
sketch36.addConstraint([
    Sketcher.Constraint("Diameter", 0, Q("3.4 mm")),
    Sketcher.Constraint("DistanceX", 0, 3, -1, 1, Q("39 mm")),
    Sketcher.Constraint("DistanceY", 0, 3, -1, 1, Q("12 mm")),
])
pocket26 = body3.newObject("PartDesign::Pocket", "Pocket025")
pocket26.Profile = sketch36
pocket26.Length = 2.3
pocket26.Reversed = True
doc.recompute()

boolean2 = body.newObject("PartDesign::Boolean", "Boolean001")
boolean2.Type = "Cut"
boolean2.addObjects([body3])
body4 = doc.addObject("PartDesign::Body", "Body003")
doc.recompute()

mirroring = doc.addObject("Part::Mirroring", "Mirroring")
mirroring.Source = body
mirroring.Base = V(0, 0, 0)
mirroring.Normal = V(0, -1, 0)
body4.BaseFeature = mirroring
doc.recompute()
body.Visibility = False
mirroring.Visibility = False

doc.recompute()
